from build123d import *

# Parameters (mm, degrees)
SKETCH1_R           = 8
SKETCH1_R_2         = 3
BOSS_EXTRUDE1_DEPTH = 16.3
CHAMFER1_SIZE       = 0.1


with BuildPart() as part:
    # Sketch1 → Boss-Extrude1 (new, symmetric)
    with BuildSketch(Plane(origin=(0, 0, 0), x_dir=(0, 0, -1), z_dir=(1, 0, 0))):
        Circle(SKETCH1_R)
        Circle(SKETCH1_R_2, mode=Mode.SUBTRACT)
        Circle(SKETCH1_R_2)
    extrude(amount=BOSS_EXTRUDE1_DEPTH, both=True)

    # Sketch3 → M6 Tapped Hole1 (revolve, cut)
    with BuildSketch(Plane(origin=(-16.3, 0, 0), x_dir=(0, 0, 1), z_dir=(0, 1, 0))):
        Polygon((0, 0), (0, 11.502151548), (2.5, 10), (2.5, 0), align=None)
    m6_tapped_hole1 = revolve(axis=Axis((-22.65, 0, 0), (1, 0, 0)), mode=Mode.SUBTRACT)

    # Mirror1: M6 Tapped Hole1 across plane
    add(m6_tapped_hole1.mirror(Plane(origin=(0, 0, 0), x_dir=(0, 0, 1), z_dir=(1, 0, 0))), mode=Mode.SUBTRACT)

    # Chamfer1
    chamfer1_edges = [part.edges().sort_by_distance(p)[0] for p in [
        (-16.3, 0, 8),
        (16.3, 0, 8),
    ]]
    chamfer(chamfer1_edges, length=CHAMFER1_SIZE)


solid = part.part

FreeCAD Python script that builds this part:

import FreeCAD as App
import Part
import Sketcher
from FreeCAD import Vector
Q = App.Units.Quantity


def edges_at(feature, points):
    """Names of the edges that pass closest to the given points."""
    edges = feature.Shape.Edges
    near = lambda p: min(range(len(edges)), key=lambda i: edges[i].distToShape(Part.Vertex(*p))[0])
    return sorted({f"Edge{near(p) + 1}" for p in points})


def add_polygon(sketch, points):
    """Adds a closed chain of lines whose ends are joined by coincident constraints."""
    first, n = sketch.GeometryCount, len(points)
    for a, b in zip(points, points[1:] + points[:1]):
        sketch.addGeometry(Part.LineSegment(App.Vector(*a, 0), App.Vector(*b, 0)), False)
    for i in range(n):
        sketch.addConstraint(Sketcher.Constraint("Coincident", first + i, 2, first + (i + 1) % n, 1))

doc = App.newDocument("Part")
body = doc.addObject("PartDesign::Body", "Body")

# Sketch on YZ plane
sketch1 = body.newObject("Sketcher::SketchObject", "Sketch")
sketch1.AttachmentSupport = (doc.getObject("YZ_Plane"), [""])
sketch1.MapMode = "FlatFace"
sketch1.addGeometry(Part.Circle(Vector(0, 0, 0), Vector(0, 0, 1), 8), False)
sketch1.addConstraint([
    Sketcher.Constraint("Coincident", 0, 3, -1, 1),
    Sketcher.Constraint("Diameter", 0, 16.0),
])
pad1 = body.newObject("PartDesign::Pad", "Pad")
pad1.Profile = sketch1
pad1.Length = 32.6
pad1.Midplane = True

# Sketch on XZ plane
sketch2 = body.newObject("Sketcher::SketchObject", "Sketch001")
sketch2.AttachmentSupport = (doc.getObject("XZ_Plane"), [""])
sketch2.MapMode = "FlatFace"
add_polygon(sketch2, [(-4.797848, 0), (-16.3, 0), (-16.3, 2.5), (-6.3, 2.5)])  # lines 0-3
sketch2.addConstraint([
    Sketcher.Constraint("Horizontal", 0),
    Sketcher.Constraint("Vertical", 1),
    Sketcher.Constraint("Horizontal", 2),
    Sketcher.Constraint("PointOnObject", 0, 2, -1),
    Sketcher.Constraint("DistanceX", 2, 1, 2, 2, 10.0),
    Sketcher.Constraint("Angle", 3, Q("-59 deg")),
    Sketcher.Constraint("DistanceY", 1, 1, 1, 2, 2.5),
    Sketcher.Constraint("DistanceX", 0, 2, -1, 1, 16.3),
])
groove = body.newObject("PartDesign::Groove", "Groove")
groove.Profile = sketch2
groove.ReferenceAxis = (sketch2, ["H_Axis"])
groove.Angle = 360
doc.recompute()

mirrored = body.newObject("PartDesign::Mirrored", "Mirrored")
mirrored.Originals = [groove]
mirrored.MirrorPlane = (doc.getObject("YZ_Plane"), [""])
body.Tip = mirrored
doc.recompute()

chamfer = body.newObject("PartDesign::Chamfer", "Chamfer")
chamfer.Base = (mirrored, edges_at(mirrored, [(-16.3, 0, 8), (16.3, 0, 8)]))
chamfer.Size = 0.1

doc.recompute()
